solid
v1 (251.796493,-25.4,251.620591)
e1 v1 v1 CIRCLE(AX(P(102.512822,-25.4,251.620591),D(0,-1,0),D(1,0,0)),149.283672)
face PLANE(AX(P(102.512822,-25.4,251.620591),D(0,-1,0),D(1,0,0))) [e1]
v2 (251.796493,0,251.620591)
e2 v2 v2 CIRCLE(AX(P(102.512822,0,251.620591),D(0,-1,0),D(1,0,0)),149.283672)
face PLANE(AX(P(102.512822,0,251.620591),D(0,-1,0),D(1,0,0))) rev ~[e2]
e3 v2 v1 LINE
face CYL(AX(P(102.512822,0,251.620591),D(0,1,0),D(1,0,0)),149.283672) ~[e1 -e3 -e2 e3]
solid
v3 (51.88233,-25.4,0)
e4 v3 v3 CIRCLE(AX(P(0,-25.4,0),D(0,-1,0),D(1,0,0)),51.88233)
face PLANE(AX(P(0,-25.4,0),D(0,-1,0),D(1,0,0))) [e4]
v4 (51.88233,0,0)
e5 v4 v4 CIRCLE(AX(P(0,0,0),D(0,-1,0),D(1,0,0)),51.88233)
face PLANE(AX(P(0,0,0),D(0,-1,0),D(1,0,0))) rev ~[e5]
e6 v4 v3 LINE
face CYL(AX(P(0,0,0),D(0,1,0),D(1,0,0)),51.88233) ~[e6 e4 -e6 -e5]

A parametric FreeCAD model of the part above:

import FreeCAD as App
import Part
import Sketcher
from FreeCAD import Vector
Q = App.Units.Quantity

doc = App.newDocument("Part")
body = doc.addObject("PartDesign::Body", "Body")

# Sketch on XZ plane
sketch1 = body.newObject("Sketcher::SketchObject", "Sketch")
sketch1.AttachmentSupport = (doc.getObject("XZ_Plane"), [""])
sketch1.MapMode = "FlatFace"
sketch1.addGeometry(Part.Circle(Vector(0, 0, 0), Vector(0, 0, 1), 52), False)
sketch1.addConstraint([
    Sketcher.Constraint("Coincident", 0, 3, -1, 1),
    Sketcher.Constraint("Diameter", 0, 103.764659),
])
pad1 = body.newObject("PartDesign::Pad", "Pad")
pad1.Profile = sketch1
pad1.Length = Q("1 in")
body2 = doc.addObject("PartDesign::Body", "Body001")

# Sketch on XZ plane
sketch2 = body2.newObject("Sketcher::SketchObject", "Sketch001")
sketch2.AttachmentSupport = (doc.getObject("XZ_Plane001"), [""])
sketch2.MapMode = "FlatFace"
sketch2.addGeometry(Part.Circle(Vector(103, 252, 0), Vector(0, 0, 1), 149), False)
sketch2.addConstraint([
    Sketcher.Constraint("Diameter", 0, 298.567343),
    Sketcher.Constraint("DistanceX", -1, 1, 0, 3, 102.512822),
    Sketcher.Constraint("DistanceY", -1, 1, 0, 3, 251.620591),
])
pad2 = body2.newObject("PartDesign::Pad", "Pad001")
pad2.Profile = sketch2
pad2.Length = Q("1 in")

doc.recompute()
